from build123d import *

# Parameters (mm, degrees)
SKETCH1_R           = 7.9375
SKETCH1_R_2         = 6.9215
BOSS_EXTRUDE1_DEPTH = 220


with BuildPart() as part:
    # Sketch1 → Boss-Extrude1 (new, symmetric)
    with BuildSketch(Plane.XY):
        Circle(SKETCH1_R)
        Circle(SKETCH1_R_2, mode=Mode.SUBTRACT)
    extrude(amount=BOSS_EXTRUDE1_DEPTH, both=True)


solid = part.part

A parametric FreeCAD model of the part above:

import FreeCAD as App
import Part
import Sketcher

V = App.Vector
Q = App.Units.Quantity

doc = App.newDocument("Part")
body = doc.addObject("PartDesign::Body", "Body")

sketch1 = doc.addObject("Sketcher::SketchObject", "Sketch")
body.addObject(sketch1)
sketch1.AttachmentSupport = (doc.XY_Plane, [""])
sketch1.MapMode = "FlatFace"
sketch1.addGeometry(Part.Circle(V(0, 0, 0), V(0, 0, 1), 7.9375), False)
sketch1.addGeometry(Part.Circle(V(0, 0, 0), V(0, 0, 1), 6.9215), False)
sketch1.addConstraint(Sketcher.Constraint("Coincident", 0, 3, -1, 1))
sketch1.addConstraint(Sketcher.Constraint("Coincident", 1, 3, -1, 1))
sketch1.addConstraint(Sketcher.Constraint("Diameter", 0, Q("0.625 in")))
sketch1.addConstraint(Sketcher.Constraint("Diameter", 1, Q("0.545 in")))
pad1 = doc.addObject("PartDesign::Pad", "Pad")
body.addObject(pad1)
pad1.Profile = sketch1
pad1.Length = 440
pad1.Midplane = True

doc.recompute()
